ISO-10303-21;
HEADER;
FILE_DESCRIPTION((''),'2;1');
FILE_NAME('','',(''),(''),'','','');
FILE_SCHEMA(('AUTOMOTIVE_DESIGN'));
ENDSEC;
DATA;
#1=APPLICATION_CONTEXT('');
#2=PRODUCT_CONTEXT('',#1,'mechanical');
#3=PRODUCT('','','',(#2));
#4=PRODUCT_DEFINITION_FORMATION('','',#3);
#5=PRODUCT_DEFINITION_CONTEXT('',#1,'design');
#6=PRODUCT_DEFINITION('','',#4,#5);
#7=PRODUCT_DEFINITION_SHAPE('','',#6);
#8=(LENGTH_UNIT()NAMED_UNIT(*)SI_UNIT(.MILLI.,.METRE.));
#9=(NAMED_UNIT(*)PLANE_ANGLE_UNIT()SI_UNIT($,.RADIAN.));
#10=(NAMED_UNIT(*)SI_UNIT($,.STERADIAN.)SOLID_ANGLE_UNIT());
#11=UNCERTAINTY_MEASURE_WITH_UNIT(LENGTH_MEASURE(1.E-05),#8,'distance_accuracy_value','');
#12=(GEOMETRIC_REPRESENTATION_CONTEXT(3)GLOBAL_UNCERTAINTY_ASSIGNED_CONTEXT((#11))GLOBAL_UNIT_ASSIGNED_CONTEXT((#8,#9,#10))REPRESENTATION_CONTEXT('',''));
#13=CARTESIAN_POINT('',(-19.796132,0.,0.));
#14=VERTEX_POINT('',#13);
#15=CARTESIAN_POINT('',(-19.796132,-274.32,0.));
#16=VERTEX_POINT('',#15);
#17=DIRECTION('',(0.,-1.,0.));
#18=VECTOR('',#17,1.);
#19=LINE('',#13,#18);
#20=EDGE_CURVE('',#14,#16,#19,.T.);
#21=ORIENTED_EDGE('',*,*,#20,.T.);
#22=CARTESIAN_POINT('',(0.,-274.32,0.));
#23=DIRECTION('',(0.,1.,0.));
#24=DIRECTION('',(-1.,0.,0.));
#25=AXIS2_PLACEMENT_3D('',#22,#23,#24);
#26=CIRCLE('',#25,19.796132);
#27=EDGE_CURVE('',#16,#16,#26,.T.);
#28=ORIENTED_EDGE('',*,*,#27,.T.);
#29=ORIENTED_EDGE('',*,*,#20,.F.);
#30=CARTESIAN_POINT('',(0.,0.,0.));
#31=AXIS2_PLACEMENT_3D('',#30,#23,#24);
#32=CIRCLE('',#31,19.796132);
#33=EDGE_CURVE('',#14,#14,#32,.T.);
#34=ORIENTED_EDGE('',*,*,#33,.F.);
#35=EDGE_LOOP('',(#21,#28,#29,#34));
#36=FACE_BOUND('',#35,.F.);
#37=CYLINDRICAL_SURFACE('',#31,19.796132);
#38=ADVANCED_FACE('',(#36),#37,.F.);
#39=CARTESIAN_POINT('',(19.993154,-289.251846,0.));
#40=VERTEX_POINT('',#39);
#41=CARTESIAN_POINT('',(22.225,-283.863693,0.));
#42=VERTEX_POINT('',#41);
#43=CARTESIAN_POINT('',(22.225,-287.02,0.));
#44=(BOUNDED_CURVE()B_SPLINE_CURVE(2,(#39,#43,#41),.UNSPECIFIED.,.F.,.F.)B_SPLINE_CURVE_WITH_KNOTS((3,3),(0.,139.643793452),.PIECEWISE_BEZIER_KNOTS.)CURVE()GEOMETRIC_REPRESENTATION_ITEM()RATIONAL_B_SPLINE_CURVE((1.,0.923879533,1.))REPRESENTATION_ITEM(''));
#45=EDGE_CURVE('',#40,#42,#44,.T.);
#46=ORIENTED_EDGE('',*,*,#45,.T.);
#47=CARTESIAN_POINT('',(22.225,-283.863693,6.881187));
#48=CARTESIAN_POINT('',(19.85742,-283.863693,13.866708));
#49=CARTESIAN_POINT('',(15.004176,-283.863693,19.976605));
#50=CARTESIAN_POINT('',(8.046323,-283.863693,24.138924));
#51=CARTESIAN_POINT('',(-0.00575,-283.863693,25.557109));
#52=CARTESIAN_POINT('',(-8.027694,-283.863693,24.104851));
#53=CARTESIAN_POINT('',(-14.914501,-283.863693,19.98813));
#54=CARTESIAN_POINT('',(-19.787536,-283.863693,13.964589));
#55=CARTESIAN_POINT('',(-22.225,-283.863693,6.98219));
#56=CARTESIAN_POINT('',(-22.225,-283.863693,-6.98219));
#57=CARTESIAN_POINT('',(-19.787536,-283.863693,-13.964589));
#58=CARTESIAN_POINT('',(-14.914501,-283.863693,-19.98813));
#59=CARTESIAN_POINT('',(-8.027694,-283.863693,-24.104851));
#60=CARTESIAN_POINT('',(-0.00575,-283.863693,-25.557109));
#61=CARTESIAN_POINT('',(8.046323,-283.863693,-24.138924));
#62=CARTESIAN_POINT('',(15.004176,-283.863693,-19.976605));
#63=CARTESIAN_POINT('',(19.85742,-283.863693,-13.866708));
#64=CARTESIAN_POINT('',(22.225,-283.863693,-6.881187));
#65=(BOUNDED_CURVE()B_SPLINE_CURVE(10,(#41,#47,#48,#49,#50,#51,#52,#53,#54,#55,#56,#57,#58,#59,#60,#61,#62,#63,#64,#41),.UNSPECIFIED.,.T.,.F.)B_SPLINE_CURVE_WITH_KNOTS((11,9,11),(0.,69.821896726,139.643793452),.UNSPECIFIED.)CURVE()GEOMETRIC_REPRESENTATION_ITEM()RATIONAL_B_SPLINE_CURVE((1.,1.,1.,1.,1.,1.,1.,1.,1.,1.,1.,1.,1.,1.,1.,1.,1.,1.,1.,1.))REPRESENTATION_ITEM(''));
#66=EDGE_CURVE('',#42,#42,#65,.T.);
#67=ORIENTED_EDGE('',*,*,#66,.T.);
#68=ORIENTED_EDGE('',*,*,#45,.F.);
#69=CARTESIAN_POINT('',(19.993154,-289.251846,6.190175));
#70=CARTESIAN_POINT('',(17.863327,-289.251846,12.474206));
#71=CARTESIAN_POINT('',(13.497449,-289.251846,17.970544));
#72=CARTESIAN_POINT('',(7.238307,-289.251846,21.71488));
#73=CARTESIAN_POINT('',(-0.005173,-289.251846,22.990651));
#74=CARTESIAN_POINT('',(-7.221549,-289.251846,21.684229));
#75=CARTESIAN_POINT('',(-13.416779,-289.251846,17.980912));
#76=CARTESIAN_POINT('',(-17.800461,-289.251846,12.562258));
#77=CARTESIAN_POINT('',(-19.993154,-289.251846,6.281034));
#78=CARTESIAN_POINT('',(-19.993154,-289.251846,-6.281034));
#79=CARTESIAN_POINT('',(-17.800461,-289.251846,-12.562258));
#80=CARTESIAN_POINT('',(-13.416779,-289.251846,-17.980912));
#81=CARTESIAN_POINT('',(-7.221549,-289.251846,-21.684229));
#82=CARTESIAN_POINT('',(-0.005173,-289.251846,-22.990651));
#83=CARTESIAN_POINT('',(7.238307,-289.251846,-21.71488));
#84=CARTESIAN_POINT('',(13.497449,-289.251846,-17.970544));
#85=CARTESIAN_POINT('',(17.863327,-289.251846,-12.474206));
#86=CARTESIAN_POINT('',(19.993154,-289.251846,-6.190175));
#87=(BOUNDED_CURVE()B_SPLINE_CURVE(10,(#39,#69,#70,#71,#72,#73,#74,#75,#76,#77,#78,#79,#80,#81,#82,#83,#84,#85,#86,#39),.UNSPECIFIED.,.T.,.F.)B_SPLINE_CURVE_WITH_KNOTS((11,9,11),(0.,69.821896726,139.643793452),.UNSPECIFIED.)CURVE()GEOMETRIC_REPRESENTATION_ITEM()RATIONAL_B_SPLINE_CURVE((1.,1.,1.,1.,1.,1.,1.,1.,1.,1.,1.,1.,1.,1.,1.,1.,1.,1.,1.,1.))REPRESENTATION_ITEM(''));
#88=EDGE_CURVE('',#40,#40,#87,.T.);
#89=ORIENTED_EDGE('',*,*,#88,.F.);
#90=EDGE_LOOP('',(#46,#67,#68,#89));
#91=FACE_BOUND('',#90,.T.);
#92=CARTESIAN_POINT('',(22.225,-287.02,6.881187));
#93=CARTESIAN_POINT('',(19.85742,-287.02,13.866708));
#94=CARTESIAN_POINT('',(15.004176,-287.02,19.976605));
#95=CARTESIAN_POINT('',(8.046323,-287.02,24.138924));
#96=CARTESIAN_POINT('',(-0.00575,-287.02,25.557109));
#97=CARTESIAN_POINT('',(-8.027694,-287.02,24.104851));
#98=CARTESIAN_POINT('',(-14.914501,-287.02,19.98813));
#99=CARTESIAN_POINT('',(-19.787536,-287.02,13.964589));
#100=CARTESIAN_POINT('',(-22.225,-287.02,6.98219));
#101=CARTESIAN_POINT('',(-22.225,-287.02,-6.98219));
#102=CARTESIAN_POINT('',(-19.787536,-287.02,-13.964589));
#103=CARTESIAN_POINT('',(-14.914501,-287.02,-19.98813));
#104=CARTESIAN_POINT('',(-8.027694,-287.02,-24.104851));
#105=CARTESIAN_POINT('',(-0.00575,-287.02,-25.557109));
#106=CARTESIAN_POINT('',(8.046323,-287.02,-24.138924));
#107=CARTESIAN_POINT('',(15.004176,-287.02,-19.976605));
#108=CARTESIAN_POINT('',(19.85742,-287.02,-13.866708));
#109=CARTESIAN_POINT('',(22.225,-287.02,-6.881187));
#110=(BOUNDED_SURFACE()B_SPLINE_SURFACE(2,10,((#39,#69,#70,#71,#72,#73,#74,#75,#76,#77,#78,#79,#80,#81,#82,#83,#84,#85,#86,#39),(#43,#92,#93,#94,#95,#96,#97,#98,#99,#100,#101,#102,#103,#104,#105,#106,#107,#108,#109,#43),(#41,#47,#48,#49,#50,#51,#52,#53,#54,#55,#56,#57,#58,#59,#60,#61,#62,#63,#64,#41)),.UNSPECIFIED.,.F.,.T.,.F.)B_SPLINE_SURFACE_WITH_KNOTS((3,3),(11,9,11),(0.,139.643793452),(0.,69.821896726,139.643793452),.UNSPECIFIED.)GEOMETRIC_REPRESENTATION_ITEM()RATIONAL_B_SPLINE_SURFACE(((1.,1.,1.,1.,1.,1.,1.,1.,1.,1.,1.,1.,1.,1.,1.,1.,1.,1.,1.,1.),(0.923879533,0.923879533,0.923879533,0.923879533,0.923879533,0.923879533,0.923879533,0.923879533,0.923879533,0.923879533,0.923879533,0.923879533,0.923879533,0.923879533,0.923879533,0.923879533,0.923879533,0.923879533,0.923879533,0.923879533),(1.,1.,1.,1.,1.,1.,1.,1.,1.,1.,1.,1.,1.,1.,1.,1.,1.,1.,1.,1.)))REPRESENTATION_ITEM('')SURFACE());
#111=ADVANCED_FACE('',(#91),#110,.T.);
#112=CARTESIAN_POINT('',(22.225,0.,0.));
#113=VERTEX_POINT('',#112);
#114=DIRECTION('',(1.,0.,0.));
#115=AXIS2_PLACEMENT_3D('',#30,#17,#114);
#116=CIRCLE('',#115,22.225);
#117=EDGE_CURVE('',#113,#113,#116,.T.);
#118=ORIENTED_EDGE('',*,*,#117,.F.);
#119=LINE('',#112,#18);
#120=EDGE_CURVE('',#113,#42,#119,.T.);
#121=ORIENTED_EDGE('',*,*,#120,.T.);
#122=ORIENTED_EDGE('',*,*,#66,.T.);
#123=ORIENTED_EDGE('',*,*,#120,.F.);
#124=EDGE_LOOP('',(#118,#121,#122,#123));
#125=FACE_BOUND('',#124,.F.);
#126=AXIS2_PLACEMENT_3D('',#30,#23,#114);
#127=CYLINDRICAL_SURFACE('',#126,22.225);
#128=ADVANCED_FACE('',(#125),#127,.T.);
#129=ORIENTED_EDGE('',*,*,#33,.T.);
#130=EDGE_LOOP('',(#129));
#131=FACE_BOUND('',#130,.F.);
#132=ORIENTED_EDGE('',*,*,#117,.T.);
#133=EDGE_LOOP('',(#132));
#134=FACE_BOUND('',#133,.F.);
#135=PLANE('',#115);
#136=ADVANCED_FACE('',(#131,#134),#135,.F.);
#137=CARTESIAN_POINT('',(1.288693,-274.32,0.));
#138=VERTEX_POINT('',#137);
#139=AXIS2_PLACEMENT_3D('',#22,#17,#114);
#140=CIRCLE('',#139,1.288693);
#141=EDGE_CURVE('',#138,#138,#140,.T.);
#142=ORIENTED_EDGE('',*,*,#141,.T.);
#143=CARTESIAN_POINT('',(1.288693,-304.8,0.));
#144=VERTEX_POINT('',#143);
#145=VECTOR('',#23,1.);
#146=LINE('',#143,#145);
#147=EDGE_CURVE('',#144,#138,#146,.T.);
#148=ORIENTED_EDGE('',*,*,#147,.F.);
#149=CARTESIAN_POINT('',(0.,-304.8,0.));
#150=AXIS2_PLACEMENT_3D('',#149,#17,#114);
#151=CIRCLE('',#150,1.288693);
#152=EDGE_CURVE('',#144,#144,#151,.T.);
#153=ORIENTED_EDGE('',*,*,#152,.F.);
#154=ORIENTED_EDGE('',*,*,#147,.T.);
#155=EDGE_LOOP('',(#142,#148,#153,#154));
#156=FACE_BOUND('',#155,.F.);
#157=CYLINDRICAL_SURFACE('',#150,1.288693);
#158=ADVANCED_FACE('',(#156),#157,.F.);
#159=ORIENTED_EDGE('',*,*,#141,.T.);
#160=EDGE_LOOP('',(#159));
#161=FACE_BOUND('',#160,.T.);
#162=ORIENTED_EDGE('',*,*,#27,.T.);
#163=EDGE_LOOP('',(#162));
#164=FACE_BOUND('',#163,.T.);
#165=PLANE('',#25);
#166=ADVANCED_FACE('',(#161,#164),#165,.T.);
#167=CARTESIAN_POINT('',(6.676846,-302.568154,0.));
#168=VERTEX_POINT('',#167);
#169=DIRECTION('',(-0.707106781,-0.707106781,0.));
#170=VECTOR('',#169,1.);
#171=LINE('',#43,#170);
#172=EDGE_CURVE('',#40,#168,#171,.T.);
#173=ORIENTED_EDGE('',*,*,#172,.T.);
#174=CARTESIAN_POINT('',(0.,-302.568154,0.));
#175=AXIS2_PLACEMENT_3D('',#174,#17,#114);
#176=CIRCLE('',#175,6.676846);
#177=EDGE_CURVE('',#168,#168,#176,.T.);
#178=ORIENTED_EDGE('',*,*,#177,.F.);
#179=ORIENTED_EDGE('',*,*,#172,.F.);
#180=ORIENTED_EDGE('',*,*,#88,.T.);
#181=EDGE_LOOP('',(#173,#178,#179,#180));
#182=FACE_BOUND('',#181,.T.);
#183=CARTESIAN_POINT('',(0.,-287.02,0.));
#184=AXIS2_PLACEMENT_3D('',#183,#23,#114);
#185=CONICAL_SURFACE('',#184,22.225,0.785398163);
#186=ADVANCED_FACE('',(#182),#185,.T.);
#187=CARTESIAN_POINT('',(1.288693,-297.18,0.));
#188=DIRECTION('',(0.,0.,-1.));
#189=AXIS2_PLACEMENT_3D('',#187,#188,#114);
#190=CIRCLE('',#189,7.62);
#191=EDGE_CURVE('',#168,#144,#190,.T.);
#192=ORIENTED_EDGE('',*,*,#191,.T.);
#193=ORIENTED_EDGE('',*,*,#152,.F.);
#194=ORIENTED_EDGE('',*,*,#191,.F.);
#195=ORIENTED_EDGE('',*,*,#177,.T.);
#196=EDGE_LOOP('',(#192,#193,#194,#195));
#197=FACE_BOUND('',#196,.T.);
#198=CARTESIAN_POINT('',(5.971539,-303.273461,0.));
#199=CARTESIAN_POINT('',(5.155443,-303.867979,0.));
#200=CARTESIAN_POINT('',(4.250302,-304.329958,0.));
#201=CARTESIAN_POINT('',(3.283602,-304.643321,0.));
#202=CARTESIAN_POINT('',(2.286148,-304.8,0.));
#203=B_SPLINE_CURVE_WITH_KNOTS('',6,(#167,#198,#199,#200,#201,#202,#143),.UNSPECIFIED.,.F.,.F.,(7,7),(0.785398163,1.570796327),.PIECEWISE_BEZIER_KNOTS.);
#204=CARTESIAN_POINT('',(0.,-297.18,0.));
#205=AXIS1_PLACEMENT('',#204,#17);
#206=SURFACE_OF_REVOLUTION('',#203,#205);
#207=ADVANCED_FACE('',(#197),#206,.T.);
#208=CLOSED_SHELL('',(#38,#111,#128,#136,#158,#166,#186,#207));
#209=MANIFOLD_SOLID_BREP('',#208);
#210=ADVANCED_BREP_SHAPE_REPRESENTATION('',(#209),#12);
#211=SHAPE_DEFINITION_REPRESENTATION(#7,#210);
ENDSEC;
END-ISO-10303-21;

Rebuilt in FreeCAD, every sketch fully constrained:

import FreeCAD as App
import Part
import Sketcher

V = App.Vector
Q = App.Units.Quantity


def edges_at(feature, points):
    """Names of the edges that pass closest to the given points."""
    edges = feature.Shape.Edges
    near = lambda p: min(range(len(edges)), key=lambda i: edges[i].distToShape(Part.Vertex(*p))[0])
    return sorted({f"Edge{near(p) + 1}" for p in points})

doc = App.newDocument("Part")
body = doc.addObject("PartDesign::Body", "Body")

# Sketch on XZ plane
sketch1 = body.newObject("Sketcher::SketchObject", "Sketch")
sketch1.AttachmentSupport = (doc.getObject("XZ_Plane"), [""])
sketch1.MapMode = "FlatFace"
sketch1.addGeometry(Part.Circle(V(0, 0, 0), V(0, 0, 1), 22), False)
sketch1.addConstraint(Sketcher.Constraint("Coincident", 0, 3, -1, 1))
sketch1.addConstraint(Sketcher.Constraint("Diameter", 0, Q("1.75 in")))
pad1 = body.newObject("PartDesign::Pad", "Pad")
pad1.Profile = sketch1
pad1.Length = Q("12 in")
doc.recompute()

chamfer = body.newObject("PartDesign::Chamfer", "Chamfer")
chamfer.Base = (pad1, edges_at(pad1, [(-22.225, -304.8, 0)]))
chamfer.Size = Q("0.7 in")
doc.recompute()

fillet = body.newObject("PartDesign::Fillet", "Fillet")
fillet.Base = (chamfer, edges_at(chamfer, [(-4.445, -304.8, 0)]))
fillet.Radius = Q("0.3 in")
doc.recompute()

fillet2 = body.newObject("PartDesign::Fillet", "Fillet001")
fillet2.Base = (fillet, edges_at(fillet, [(-22.225, -287.02, 0)]))
fillet2.Radius = Q("0.3 in")

# Sketch on XZ plane
sketch2 = body.newObject("Sketcher::SketchObject", "Sketch001")
sketch2.AttachmentSupport = (doc.getObject("XZ_Plane"), [""])
sketch2.MapMode = "FlatFace"
sketch2.addGeometry(Part.Circle(V(0, 0, 0), V(0, 0, 1), 20), False)
sketch2.addConstraint(Sketcher.Constraint("Coincident", 0, 3, -1, 1))
sketch2.addConstraint(Sketcher.Constraint("Diameter", 0, Q("39.592263 mm")))
pocket1 = body.newObject("PartDesign::Pocket", "Pocket")
pocket1.Profile = sketch2
pocket1.Length = Q("10.8 in")
pocket1.Reversed = True

# Sketch on XZ plane
sketch3 = body.newObject("Sketcher::SketchObject", "Sketch002")
sketch3.AttachmentSupport = (doc.getObject("XZ_Plane"), [""])
sketch3.MapMode = "FlatFace"
sketch3.AttachmentOffset = App.Placement(V(0, 0, 12 * 25.4), App.Rotation())
sketch3.addGeometry(Part.Circle(V(0, 0, 0), V(0, 0, 1), 1.3), False)
sketch3.addConstraint(Sketcher.Constraint("Coincident", 0, 3, -1, 1))
sketch3.addConstraint(Sketcher.Constraint("Diameter", 0, Q("2.577385 mm")))
pocket2 = body.newObject("PartDesign::Pocket", "Pocket001")
pocket2.Profile = sketch3
pocket2.Length = Q("12 in")

doc.recompute()
